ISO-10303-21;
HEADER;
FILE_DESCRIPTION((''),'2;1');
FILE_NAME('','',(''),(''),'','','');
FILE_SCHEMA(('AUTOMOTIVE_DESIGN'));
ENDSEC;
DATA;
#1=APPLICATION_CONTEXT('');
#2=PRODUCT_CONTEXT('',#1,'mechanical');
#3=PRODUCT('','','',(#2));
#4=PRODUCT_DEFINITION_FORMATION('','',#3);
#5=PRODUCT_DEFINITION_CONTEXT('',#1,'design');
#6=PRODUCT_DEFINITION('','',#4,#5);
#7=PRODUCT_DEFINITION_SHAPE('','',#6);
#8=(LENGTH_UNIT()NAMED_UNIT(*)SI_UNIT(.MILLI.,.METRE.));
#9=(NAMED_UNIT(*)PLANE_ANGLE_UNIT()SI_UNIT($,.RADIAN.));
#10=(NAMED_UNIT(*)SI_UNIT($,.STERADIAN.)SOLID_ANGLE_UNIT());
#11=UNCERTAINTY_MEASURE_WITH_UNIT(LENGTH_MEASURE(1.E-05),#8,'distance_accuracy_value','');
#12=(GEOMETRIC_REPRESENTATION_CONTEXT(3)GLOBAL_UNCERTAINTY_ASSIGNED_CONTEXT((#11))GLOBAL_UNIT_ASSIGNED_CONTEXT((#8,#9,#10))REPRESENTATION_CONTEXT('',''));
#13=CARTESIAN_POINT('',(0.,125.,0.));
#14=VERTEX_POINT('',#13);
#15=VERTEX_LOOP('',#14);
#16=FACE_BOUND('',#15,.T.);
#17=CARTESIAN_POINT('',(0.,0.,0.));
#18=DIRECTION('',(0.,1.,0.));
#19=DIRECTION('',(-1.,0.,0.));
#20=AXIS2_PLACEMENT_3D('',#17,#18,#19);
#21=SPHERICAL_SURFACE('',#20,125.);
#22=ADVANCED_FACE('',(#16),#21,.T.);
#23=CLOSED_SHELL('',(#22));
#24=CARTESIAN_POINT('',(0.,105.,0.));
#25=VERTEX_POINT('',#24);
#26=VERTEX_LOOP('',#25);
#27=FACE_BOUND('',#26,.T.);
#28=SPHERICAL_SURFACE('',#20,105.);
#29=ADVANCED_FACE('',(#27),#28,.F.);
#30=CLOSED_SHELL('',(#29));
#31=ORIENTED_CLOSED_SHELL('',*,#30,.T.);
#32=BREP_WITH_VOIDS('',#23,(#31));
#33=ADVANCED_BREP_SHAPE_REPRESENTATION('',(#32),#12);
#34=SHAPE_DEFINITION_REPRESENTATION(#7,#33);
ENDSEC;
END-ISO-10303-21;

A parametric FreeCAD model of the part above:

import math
import FreeCAD as App
import Part
import Sketcher
from FreeCAD import Vector

doc = App.newDocument("Part")
body = doc.addObject("PartDesign::Body", "Body")

sketch1 = body.newObject("Sketcher::SketchObject", "Sketch")
sketch1.AttachmentSupport = (doc.getObject("XY_Plane"), [""])
sketch1.MapMode = "FlatFace"
sketch1.addGeometry(Part.LineSegment(Vector(0, 125, 0), Vector(0, 105, 0)), False)
sketch1.addGeometry(Part.ArcOfCircle(Part.Circle(Vector(0, 0, 0), Vector(0, 0, 1), 105), math.radians(-90), math.radians(90)), False)
sketch1.addGeometry(Part.LineSegment(Vector(0, -105, 0), Vector(0, -125, 0)), False)
sketch1.addGeometry(Part.ArcOfCircle(Part.Circle(Vector(0, 0, 0), Vector(0, 0, 1), 125), math.radians(-90), math.radians(90)), False)
sketch1.addConstraint(Sketcher.Constraint("Coincident", 0, 2, 1, 2))
sketch1.addConstraint(Sketcher.Constraint("Coincident", 1, 1, 2, 1))
sketch1.addConstraint(Sketcher.Constraint("Coincident", 2, 2, 3, 1))
sketch1.addConstraint(Sketcher.Constraint("Coincident", 3, 2, 0, 1))
sketch1.addConstraint(Sketcher.Constraint("Vertical", 0))
sketch1.addConstraint(Sketcher.Constraint("Vertical", 2))
sketch1.addConstraint(Sketcher.Constraint("Coincident", 1, 3, -1, 1))
sketch1.addConstraint(Sketcher.Constraint("Coincident", 3, 3, -1, 1))
sketch1.addConstraint(Sketcher.Constraint("PointOnObject", 0, 2, -2))
sketch1.addConstraint(Sketcher.Constraint("PointOnObject", 1, 1, -2))
sketch1.addConstraint(Sketcher.Constraint("Radius", 1, 105.0))
sketch1.addConstraint(Sketcher.Constraint("Radius", 3, 125.0))
revolution = body.newObject("PartDesign::Revolution", "Revolution")
revolution.Profile = sketch1
revolution.ReferenceAxis = (sketch1, ["V_Axis"])
revolution.Angle = 360

doc.recompute()
